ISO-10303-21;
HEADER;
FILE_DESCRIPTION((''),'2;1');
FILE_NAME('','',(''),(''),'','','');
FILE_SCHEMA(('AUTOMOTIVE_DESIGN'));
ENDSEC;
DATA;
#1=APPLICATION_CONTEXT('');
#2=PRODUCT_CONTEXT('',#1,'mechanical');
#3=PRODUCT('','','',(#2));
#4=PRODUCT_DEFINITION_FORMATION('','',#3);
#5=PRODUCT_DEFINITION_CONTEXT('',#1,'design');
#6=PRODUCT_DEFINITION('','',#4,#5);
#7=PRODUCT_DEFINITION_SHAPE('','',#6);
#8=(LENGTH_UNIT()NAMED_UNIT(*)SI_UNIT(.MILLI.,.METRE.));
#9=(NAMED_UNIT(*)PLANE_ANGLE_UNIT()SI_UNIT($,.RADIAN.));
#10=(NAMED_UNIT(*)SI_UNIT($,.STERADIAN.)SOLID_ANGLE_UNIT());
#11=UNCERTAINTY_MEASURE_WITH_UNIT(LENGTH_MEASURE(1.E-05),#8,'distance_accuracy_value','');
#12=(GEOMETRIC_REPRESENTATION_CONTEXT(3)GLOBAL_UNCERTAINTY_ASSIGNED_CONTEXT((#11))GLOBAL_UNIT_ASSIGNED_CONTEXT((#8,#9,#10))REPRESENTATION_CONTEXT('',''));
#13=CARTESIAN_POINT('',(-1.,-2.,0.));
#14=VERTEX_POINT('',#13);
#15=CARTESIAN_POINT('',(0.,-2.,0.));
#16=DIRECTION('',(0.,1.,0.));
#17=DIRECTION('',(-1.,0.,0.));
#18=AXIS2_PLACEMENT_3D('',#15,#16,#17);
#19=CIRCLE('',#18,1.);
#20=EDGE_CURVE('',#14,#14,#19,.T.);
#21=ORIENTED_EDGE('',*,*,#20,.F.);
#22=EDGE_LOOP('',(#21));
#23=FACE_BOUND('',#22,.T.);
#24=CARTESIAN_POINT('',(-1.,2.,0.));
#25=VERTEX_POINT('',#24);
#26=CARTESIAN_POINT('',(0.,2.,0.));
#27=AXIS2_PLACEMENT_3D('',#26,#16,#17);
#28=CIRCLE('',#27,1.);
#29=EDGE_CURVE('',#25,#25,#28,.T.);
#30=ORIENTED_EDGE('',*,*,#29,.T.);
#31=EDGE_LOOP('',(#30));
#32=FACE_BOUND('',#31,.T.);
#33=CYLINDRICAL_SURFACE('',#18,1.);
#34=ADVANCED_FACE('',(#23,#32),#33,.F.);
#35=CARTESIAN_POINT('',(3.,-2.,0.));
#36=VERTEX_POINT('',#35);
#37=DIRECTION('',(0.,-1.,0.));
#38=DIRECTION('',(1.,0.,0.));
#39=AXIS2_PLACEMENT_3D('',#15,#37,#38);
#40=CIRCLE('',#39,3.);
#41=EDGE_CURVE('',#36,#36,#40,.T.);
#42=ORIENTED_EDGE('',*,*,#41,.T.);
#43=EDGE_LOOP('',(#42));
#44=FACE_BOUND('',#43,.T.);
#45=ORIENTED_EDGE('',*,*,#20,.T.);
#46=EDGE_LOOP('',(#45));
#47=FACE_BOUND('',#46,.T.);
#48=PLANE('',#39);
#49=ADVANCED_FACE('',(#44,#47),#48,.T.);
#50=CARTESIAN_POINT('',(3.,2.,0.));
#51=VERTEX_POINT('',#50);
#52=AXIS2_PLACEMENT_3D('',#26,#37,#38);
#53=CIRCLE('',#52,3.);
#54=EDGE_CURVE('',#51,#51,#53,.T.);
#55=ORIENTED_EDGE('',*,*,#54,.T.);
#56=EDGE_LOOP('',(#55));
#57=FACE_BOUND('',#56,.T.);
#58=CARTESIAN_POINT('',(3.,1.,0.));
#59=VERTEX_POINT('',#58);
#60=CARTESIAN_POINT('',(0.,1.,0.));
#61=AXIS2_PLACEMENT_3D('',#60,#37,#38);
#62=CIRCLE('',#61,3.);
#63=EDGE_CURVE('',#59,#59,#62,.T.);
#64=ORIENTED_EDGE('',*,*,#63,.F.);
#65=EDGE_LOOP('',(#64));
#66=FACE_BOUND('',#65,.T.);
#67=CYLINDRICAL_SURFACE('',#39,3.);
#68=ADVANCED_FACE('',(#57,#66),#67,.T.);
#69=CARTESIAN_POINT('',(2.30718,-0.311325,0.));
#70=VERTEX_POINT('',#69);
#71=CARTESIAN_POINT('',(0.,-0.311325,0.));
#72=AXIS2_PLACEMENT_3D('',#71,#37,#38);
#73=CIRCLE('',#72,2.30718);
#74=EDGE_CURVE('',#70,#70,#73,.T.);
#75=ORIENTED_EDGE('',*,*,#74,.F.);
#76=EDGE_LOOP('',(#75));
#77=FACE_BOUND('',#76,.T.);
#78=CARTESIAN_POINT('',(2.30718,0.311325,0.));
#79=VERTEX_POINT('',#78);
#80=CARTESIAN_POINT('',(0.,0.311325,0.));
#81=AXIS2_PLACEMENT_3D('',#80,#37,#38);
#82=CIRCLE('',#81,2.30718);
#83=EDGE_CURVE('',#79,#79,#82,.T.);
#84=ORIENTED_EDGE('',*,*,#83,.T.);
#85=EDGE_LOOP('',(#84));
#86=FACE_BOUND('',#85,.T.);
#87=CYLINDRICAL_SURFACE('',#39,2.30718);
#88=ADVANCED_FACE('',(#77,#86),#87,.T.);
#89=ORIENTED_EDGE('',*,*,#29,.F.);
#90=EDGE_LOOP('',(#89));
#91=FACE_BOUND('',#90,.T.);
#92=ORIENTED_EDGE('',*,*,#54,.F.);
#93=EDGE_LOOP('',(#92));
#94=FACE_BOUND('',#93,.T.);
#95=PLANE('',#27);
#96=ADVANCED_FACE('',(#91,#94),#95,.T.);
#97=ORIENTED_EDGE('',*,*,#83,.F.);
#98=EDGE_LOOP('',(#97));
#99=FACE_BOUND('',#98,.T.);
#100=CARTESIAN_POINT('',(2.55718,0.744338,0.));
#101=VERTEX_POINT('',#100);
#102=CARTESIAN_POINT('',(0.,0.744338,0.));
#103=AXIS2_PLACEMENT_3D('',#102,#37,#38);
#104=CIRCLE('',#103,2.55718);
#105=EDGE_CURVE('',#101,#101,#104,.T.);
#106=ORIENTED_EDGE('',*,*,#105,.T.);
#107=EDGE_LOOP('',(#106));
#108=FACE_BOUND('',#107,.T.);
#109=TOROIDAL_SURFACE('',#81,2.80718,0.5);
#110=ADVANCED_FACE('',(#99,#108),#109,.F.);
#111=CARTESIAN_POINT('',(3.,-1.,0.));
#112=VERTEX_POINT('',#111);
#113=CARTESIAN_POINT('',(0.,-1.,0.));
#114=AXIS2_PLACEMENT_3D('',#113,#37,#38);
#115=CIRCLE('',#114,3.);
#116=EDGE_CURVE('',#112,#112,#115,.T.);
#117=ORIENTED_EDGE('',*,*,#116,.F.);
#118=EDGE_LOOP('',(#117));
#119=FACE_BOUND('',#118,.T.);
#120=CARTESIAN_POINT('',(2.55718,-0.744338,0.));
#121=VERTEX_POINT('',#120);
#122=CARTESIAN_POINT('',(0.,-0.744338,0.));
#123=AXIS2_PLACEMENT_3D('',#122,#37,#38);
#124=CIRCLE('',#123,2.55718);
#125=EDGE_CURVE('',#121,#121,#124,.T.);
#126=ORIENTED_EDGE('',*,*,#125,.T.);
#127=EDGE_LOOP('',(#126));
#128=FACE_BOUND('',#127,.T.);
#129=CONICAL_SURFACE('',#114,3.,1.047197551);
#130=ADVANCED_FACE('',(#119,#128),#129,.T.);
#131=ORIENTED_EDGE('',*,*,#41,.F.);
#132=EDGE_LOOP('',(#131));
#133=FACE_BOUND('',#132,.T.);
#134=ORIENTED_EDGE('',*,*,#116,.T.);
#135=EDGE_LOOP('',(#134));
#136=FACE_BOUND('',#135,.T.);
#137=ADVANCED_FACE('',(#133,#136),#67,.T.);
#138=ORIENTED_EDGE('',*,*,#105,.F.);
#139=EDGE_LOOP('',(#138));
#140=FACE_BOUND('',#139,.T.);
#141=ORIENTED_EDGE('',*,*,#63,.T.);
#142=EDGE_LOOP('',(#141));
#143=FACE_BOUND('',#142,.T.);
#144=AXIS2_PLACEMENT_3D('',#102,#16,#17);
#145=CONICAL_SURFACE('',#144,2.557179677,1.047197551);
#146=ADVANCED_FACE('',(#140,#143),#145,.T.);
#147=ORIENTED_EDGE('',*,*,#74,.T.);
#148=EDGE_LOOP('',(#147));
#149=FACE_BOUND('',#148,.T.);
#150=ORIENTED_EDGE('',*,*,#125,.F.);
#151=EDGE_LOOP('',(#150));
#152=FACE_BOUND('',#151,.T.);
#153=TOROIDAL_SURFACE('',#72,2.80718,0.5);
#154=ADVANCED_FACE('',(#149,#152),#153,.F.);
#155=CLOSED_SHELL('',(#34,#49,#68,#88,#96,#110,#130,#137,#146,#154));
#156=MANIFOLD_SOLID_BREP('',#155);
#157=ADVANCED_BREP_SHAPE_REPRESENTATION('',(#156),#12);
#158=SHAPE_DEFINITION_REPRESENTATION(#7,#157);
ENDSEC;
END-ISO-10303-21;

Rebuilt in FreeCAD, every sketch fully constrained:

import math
import FreeCAD as App
import Part
import Sketcher

V = App.Vector
Q = App.Units.Quantity

doc = App.newDocument("Part")
body = doc.addObject("PartDesign::Body", "Body")

# Sketch on XY plane
sketch1 = doc.addObject("Sketcher::SketchObject", "Sketch")
body.addObject(sketch1)
sketch1.AttachmentSupport = (doc.XY_Plane, [""])
sketch1.MapMode = "FlatFace"
sketch1.addGeometry([
    Part.LineSegment(V(3, 2, 0), V(0, 2, 0)),  # 0
    Part.LineSegment(V(0, 2, 0), V(0, -2, 0)),  # 1
    Part.LineSegment(V(0, -2, 0), V(3, -2, 0)),  # 2
    Part.LineSegment(V(3, -2, 0), V(3, -1, 0)),  # 3
    Part.LineSegment(V(3, -1, 0), V(2.55718, -0.744338, 0)),  # 4
    Part.ArcOfCircle(Part.Circle(V(2.80718, -0.311325, 0), V(0, 0, 1), 0.5), math.radians(180), math.radians(240)),  # 5
    Part.LineSegment(V(2.30718, -0.311325, 0), V(2.30718, 0.311325, 0)),  # 6
    Part.ArcOfCircle(Part.Circle(V(2.80718, 0.311325, 0), V(0, 0, 1), 0.5), math.radians(120), math.radians(180)),  # 7
    Part.LineSegment(V(2.55718, 0.744338, 0), V(3, 1, 0)),  # 8
    Part.LineSegment(V(3, 1, 0), V(3, 2, 0)),  # 9
], False)
sketch1.addConstraint([
    Sketcher.Constraint("Coincident", 0, 2, 1, 1),
    Sketcher.Constraint("Coincident", 1, 2, 2, 1),
    Sketcher.Constraint("Coincident", 2, 2, 3, 1),
    Sketcher.Constraint("Coincident", 3, 2, 4, 1),
    Sketcher.Constraint("Tangent", 4, 2, 5, 2),
    Sketcher.Constraint("Tangent", 5, 1, 6, 1),
    Sketcher.Constraint("Tangent", 6, 2, 7, 2),
    Sketcher.Constraint("Tangent", 7, 1, 8, 1),
    Sketcher.Constraint("Coincident", 8, 2, 9, 1),
    Sketcher.Constraint("Coincident", 9, 2, 0, 1),
    Sketcher.Constraint("Horizontal", 0),
    Sketcher.Constraint("Vertical", 1),
    Sketcher.Constraint("Horizontal", 2),
    Sketcher.Constraint("Vertical", 3),
    Sketcher.Constraint("Vertical", 6),
    Sketcher.Constraint("Vertical", 9),
    Sketcher.Constraint("Equal", 5, 7),
    Sketcher.Constraint("Symmetric", 0, 2, 1, 2, -1, 1),
    Sketcher.Constraint("Symmetric", 4, 2, 7, 1, -1),
    Sketcher.Constraint("Vertical", 3, 2, 8, 2),
    Sketcher.Constraint("Radius", 5, Q("0.5 mm")),
    Sketcher.Constraint("DistanceX", 0, 2, 0, 1, Q("3 mm")),
    Sketcher.Constraint("DistanceY", 1, 2, 1, 1, Q("4 mm")),
    Sketcher.Constraint("DistanceY", 3, 1, 3, 2, Q("1 mm")),
    Sketcher.Constraint("Angle", 4, Q("150 deg")),
    Sketcher.Constraint("DistanceY", 6, 1, 6, 2, Q("0.62265 mm")),
])
revolution = doc.addObject("PartDesign::Revolution", "Revolution")
body.addObject(revolution)
revolution.Profile = sketch1
revolution.ReferenceAxis = (sketch1, ["V_Axis"])
revolution.Angle = 360

# Sketch on XZ plane
sketch2 = doc.addObject("Sketcher::SketchObject", "Sketch001")
body.addObject(sketch2)
sketch2.AttachmentSupport = (doc.XZ_Plane, [""])
sketch2.MapMode = "FlatFace"
sketch2.AttachmentOffset = App.Placement(V(0, 0, -2), App.Rotation())
sketch2.addGeometry(Part.Circle(V(0, 0, 0), V(0, 0, 1), 1), False)
sketch2.addConstraint([
    Sketcher.Constraint("Coincident", 0, 3, -1, 1),
    Sketcher.Constraint("Diameter", 0, Q("2 mm")),
])
pocket1 = doc.addObject("PartDesign::Pocket", "Pocket")
body.addObject(pocket1)
pocket1.Profile = sketch2
pocket1.Type = "ThroughAll"
pocket1.Reversed = True

doc.recompute()
